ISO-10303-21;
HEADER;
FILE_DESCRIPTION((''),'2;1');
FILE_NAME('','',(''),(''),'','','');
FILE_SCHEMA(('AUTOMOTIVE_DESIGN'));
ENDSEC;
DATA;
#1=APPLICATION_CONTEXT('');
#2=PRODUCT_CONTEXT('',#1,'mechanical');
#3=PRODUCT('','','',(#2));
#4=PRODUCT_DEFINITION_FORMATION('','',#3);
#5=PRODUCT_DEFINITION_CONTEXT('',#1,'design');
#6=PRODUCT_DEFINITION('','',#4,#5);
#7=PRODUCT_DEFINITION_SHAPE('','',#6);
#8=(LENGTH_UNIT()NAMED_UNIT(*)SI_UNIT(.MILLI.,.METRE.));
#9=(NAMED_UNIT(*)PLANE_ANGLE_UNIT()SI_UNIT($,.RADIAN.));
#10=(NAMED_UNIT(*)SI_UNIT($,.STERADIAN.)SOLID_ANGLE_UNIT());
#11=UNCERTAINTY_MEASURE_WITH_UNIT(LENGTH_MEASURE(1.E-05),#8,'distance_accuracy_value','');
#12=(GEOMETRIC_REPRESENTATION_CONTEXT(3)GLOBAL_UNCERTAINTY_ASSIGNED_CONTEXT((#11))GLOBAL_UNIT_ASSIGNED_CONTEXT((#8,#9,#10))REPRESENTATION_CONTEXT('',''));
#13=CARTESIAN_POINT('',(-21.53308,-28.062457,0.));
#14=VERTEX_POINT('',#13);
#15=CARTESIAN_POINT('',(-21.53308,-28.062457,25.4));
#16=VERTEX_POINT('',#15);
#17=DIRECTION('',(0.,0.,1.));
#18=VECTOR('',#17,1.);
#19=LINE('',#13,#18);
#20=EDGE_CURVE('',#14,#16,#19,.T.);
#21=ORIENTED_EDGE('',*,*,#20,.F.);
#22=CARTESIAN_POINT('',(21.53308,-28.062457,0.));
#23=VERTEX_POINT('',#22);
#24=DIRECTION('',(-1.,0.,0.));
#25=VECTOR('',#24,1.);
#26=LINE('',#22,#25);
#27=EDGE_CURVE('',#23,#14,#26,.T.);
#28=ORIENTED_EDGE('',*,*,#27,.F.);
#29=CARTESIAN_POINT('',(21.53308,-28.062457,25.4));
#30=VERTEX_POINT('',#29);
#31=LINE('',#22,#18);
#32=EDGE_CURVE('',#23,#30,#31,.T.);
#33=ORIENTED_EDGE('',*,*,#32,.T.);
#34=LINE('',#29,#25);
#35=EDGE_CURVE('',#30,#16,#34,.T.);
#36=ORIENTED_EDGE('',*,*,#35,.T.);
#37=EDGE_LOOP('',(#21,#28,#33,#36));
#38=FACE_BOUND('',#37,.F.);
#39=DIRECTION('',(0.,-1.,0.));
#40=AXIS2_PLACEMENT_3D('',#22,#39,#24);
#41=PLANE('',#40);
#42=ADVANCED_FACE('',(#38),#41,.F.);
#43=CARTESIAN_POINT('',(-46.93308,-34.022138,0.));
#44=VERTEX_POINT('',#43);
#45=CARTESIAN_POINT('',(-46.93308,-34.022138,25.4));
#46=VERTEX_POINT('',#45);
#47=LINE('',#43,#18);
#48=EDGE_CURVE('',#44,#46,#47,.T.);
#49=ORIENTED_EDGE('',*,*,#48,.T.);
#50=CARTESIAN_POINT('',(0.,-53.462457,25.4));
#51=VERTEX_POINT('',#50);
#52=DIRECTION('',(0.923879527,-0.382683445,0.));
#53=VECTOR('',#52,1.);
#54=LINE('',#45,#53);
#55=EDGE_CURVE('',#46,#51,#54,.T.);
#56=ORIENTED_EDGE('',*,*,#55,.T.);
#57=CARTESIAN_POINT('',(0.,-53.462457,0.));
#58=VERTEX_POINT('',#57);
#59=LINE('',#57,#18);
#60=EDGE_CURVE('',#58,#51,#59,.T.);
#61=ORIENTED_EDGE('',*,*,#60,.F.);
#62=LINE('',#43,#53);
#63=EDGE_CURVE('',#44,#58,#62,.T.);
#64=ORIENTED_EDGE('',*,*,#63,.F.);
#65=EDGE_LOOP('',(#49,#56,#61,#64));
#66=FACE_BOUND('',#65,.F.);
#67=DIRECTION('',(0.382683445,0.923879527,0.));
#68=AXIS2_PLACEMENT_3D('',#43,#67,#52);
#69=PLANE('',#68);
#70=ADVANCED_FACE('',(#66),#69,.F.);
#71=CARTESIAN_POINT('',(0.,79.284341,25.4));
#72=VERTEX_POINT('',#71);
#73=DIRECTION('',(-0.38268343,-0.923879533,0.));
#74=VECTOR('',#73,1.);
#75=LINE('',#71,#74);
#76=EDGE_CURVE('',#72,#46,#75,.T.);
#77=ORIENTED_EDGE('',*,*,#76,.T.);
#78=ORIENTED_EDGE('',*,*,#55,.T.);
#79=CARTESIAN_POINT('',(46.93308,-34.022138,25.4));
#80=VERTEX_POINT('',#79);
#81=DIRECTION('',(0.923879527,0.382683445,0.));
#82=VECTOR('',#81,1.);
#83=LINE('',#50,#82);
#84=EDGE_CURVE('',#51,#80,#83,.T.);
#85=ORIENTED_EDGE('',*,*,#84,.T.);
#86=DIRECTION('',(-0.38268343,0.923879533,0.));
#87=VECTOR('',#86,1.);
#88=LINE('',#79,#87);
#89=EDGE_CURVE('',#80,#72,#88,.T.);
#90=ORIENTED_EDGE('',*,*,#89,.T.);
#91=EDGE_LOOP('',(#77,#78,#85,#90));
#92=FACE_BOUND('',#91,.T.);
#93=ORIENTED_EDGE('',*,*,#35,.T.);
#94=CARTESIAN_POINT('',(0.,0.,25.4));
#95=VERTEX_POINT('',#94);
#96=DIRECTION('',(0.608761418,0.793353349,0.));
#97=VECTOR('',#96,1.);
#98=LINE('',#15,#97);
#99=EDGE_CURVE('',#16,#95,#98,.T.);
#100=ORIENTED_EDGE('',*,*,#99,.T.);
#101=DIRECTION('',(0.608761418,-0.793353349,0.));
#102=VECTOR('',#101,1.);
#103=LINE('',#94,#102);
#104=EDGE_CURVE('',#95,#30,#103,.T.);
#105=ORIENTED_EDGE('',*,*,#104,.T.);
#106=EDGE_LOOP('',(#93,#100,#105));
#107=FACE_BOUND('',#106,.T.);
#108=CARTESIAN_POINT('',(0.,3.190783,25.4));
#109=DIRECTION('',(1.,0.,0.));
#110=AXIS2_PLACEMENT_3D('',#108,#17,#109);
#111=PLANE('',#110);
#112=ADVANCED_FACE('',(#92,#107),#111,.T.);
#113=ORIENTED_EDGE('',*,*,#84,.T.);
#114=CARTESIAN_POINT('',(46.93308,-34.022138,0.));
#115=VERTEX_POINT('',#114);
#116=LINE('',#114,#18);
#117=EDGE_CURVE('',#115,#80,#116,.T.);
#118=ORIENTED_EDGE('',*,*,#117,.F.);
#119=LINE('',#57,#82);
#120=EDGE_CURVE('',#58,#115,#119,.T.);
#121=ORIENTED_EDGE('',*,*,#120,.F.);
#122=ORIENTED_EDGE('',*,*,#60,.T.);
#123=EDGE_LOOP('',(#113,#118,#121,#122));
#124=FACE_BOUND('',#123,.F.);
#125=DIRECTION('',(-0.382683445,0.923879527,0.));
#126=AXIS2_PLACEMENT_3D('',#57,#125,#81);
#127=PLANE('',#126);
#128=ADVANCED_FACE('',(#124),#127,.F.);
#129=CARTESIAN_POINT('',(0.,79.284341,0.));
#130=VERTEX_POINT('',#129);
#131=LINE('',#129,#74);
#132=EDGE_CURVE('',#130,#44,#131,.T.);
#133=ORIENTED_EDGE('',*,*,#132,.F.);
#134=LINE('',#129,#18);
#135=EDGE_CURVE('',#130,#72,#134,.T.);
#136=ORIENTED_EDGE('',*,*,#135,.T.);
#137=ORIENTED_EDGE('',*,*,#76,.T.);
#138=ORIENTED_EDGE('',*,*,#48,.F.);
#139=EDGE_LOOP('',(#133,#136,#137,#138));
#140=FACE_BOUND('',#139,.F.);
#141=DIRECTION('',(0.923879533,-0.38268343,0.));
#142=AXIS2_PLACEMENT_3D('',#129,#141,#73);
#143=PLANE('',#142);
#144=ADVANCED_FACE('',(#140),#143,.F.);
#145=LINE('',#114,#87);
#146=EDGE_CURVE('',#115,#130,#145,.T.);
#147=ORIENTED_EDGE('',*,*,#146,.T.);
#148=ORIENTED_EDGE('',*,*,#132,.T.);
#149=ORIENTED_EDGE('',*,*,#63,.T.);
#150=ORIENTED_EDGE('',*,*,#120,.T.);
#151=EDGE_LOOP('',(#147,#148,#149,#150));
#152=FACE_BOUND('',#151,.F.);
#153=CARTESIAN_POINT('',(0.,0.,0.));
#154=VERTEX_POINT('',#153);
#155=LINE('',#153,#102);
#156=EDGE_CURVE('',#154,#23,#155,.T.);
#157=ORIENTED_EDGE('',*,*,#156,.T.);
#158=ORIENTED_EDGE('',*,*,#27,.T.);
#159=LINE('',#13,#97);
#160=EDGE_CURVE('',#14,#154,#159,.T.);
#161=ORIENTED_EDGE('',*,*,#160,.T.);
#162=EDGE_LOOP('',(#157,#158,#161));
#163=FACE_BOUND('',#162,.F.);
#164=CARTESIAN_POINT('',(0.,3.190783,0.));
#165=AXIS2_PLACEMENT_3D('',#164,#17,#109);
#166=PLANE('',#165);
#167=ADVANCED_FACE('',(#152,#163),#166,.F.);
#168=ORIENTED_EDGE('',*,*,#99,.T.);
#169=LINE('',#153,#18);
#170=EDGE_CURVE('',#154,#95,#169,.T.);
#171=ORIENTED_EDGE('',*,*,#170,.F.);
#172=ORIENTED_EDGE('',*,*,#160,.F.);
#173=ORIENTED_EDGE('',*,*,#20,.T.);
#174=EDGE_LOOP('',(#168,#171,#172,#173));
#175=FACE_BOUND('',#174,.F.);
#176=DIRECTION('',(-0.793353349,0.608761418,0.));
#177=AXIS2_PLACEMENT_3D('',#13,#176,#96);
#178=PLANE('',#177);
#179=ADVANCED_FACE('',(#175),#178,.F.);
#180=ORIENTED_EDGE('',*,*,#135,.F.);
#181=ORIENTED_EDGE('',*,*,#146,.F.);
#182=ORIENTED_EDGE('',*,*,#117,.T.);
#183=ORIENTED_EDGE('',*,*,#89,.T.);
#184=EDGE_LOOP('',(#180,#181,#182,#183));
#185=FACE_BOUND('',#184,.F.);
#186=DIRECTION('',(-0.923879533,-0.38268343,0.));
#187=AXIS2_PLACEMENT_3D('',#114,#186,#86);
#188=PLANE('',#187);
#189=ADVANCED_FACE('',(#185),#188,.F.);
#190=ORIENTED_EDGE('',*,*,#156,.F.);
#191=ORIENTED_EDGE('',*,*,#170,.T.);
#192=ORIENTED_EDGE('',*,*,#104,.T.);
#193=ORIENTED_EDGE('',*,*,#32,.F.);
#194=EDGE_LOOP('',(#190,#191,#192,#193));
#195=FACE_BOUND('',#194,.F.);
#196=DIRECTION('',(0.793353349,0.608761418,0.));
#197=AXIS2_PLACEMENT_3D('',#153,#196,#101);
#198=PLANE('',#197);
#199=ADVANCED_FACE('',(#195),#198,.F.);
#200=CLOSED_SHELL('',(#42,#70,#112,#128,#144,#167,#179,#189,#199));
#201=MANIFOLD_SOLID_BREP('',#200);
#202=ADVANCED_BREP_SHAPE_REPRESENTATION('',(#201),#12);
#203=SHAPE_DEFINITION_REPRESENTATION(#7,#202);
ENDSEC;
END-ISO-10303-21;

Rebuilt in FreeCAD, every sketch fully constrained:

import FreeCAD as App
import Part
import Sketcher
from FreeCAD import Vector
Q = App.Units.Quantity


def add_polygon(sketch, points):
    """Adds a closed chain of lines whose ends are joined by coincident constraints."""
    first, n = sketch.GeometryCount, len(points)
    for a, b in zip(points, points[1:] + points[:1]):
        sketch.addGeometry(Part.LineSegment(App.Vector(*a, 0), App.Vector(*b, 0)), False)
    for i in range(n):
        sketch.addConstraint(Sketcher.Constraint("Coincident", first + i, 2, first + (i + 1) % n, 1))

doc = App.newDocument("Part")
body = doc.addObject("PartDesign::Body", "Body")

sketch1 = body.newObject("Sketcher::SketchObject", "Sketch")
sketch1.AttachmentSupport = (doc.getObject("XY_Plane"), [""])
sketch1.MapMode = "FlatFace"
add_polygon(sketch1, [(0, 79), (-47, -34), (0, -53), (47, -34)])
add_polygon(sketch1, [(22, -28), (-22, -28), (0, 0)])
sketch1.addConstraint([
    Sketcher.Constraint("Horizontal", 4),
    Sketcher.Constraint("Coincident", 5, 2, -1, 1),
    Sketcher.Constraint("Symmetric", 0, 2, 2, 2, -2),
    Sketcher.Constraint("PointOnObject", 1, 2, -2),
    Sketcher.Constraint("PointOnObject", 3, 2, -2),
    Sketcher.Constraint("Perpendicular", 0, 1),
    Sketcher.Constraint("Equal", 5, 6),
    Sketcher.Constraint("Distance", 1, Q("2 in")),
    Sketcher.Constraint("DistanceX", 0, 2, 4, 2, Q("1 in")),
    Sketcher.Constraint("DistanceY", 1, 2, 4, 2, Q("1 in")),
    Sketcher.Constraint("Angle", 0, Q("-112.5 deg")),
    Sketcher.Constraint("Angle", 5, Q("52.500001 deg")),
])
pad1 = body.newObject("PartDesign::Pad", "Pad")
pad1.Profile = sketch1
pad1.Length = Q("1 in")

doc.recompute()
